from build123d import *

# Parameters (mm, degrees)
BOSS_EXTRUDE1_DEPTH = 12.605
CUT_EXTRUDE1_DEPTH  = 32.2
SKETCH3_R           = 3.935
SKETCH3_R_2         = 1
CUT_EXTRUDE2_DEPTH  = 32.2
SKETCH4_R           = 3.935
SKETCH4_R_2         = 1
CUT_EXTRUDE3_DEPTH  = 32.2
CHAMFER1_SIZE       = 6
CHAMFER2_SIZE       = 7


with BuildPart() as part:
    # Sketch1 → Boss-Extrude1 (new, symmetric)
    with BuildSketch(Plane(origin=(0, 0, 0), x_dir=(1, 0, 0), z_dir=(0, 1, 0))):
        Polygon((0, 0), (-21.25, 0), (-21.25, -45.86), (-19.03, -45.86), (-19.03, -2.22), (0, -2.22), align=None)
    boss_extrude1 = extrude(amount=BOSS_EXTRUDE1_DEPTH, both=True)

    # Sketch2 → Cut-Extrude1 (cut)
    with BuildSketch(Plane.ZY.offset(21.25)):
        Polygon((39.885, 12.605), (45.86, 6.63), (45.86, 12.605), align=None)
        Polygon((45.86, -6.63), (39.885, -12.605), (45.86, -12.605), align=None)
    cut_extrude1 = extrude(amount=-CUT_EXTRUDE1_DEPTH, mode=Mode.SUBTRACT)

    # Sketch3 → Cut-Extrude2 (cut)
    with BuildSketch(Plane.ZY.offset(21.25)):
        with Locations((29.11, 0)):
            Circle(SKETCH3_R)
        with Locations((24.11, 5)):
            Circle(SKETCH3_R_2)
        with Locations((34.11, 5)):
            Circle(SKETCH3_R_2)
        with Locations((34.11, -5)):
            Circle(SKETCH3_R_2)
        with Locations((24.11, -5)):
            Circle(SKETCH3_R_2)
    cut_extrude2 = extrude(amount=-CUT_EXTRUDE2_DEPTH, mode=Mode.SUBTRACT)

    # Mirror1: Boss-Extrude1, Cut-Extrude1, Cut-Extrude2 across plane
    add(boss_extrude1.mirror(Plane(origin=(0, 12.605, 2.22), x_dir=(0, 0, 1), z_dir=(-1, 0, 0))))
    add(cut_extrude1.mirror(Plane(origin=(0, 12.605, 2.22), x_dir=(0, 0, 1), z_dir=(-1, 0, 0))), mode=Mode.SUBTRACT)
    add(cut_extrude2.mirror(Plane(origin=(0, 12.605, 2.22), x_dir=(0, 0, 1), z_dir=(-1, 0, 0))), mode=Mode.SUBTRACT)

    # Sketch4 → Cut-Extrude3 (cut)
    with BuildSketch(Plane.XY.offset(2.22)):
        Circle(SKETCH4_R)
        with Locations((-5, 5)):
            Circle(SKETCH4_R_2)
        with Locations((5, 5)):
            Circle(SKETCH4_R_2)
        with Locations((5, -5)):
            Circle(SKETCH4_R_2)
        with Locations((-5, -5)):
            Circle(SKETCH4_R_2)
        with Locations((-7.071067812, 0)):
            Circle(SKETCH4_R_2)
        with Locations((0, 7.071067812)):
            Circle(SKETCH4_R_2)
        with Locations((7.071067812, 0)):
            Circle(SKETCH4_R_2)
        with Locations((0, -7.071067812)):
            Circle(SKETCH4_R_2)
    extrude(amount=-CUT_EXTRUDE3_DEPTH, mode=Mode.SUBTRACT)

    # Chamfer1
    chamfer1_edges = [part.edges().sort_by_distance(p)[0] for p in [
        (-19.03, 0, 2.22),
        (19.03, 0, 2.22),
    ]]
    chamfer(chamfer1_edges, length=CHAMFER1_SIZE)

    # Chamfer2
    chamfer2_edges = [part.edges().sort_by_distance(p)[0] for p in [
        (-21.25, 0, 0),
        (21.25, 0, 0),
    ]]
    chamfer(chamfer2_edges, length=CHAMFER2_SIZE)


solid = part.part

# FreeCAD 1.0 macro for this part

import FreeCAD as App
import Part
import Sketcher
from FreeCAD import Vector
Q = App.Units.Quantity


def edges_at(feature, points):
    """Names of the edges that pass closest to the given points."""
    edges = feature.Shape.Edges
    near = lambda p: min(range(len(edges)), key=lambda i: edges[i].distToShape(Part.Vertex(*p))[0])
    return sorted({f"Edge{near(p) + 1}" for p in points})

doc = App.newDocument("Part")
params = doc.addObject("Spreadsheet::Sheet", "Params")
for row, (alias, value) in enumerate([
    ("sketch1_width", "21.25 mm"),
    ("sketch1_width2", "2.22 mm"),
    ("sketch1_height", "45.86 mm"),
    ("pad1_length", "25.21 mm"),
    ("pocket1_length", "32.2 mm"),
    ("sketch3_diameter", "2 mm"),
    ("sketch3_diameter2", "7.87 mm"),
    ("pocket2_length", "32.2 mm"),
    ("sketch4_diameter", "2 mm"),
    ("sketch4_diameter2", "7.87 mm"),
    ("pocket3_length", "32.2 mm"),
    ("chamfer_size", "6 mm"),
    ("chamfer2_size", "7 mm"),
], start=1):
    params.set(f"A{row}", alias)
    params.set(f"B{row}", "=" + value)
    params.setAlias(f"B{row}", alias)

body = doc.addObject("PartDesign::Body", "Body")

# Sketch on XZ plane
sketch1 = body.newObject("Sketcher::SketchObject", "Sketch")
sketch1.AttachmentSupport = (doc.getObject("XZ_Plane"), [""])
sketch1.MapMode = "FlatFace"
sketch1.addGeometry(Part.LineSegment(Vector(0, 0, 0), Vector(-21.2, 0, 0)), False)
sketch1.addGeometry(Part.LineSegment(Vector(-21.2, 0, 0), Vector(-21.2, 45.9, 0)), False)
sketch1.addGeometry(Part.LineSegment(Vector(-21.2, 45.9, 0), Vector(-19, 45.9, 0)), False)
sketch1.addGeometry(Part.LineSegment(Vector(-19, 45.9, 0), Vector(-19, 2.2, 0)), False)
sketch1.addGeometry(Part.LineSegment(Vector(-19, 2.2, 0), Vector(0, 2.2, 0)), False)
sketch1.addGeometry(Part.LineSegment(Vector(0, 2.2, 0), Vector(0, 0, 0)), False)
sketch1.addConstraint(Sketcher.Constraint("Coincident", 0, 2, 1, 1))
sketch1.addConstraint(Sketcher.Constraint("Coincident", 1, 2, 2, 1))
sketch1.addConstraint(Sketcher.Constraint("Coincident", 2, 2, 3, 1))
sketch1.addConstraint(Sketcher.Constraint("Coincident", 3, 2, 4, 1))
sketch1.addConstraint(Sketcher.Constraint("Coincident", 4, 2, 5, 1))
sketch1.addConstraint(Sketcher.Constraint("Coincident", 5, 2, 0, 1))
sketch1.addConstraint(Sketcher.Constraint("Horizontal", 0))
sketch1.addConstraint(Sketcher.Constraint("Vertical", 1))
sketch1.addConstraint(Sketcher.Constraint("Horizontal", 2))
sketch1.addConstraint(Sketcher.Constraint("Vertical", 3))
sketch1.addConstraint(Sketcher.Constraint("Horizontal", 4))
sketch1.addConstraint(Sketcher.Constraint("Vertical", 5))
sketch1.addConstraint(Sketcher.Constraint("Coincident", 5, 2, -1, 1))
sketch1.addConstraint(Sketcher.Constraint("Equal", 2, 5))
sketch1.addConstraint(Sketcher.Constraint("DistanceX", 0, 2, 0, 1, Q("21.25 mm")))
sketch1.addConstraint(Sketcher.Constraint("DistanceX", 2, 1, 2, 2, Q("2.22 mm")))
sketch1.addConstraint(Sketcher.Constraint("DistanceY", 1, 1, 1, 2, Q("45.86 mm")))
sketch1.setExpression("Constraints[14]", "Params.sketch1_width")
sketch1.setExpression("Constraints[15]", "Params.sketch1_width2")
sketch1.setExpression("Constraints[16]", "Params.sketch1_height")
pad1 = body.newObject("PartDesign::Pad", "Pad")
pad1.Profile = sketch1
pad1.setExpression("Length", "Params.pad1_length")
pad1.Midplane = True

# Sketch on YZ plane
sketch2 = body.newObject("Sketcher::SketchObject", "Sketch001")
sketch2.AttachmentSupport = (doc.getObject("YZ_Plane"), [""])
sketch2.MapMode = "FlatFace"
sketch2.AttachmentOffset = App.Placement(Vector(0, 0, -21.25), App.Rotation())
sketch2.addGeometry(Part.LineSegment(Vector(13, 40, 0), Vector(7, 46, 0)), False)
sketch2.addGeometry(Part.LineSegment(Vector(7, 46, 0), Vector(13, 46, 0)), False)
sketch2.addGeometry(Part.LineSegment(Vector(13, 46, 0), Vector(13, 40, 0)), False)
sketch2.addGeometry(Part.LineSegment(Vector(-7, 46, 0), Vector(-13, 40, 0)), False)
sketch2.addGeometry(Part.LineSegment(Vector(-13, 40, 0), Vector(-13, 46, 0)), False)
sketch2.addGeometry(Part.LineSegment(Vector(-13, 46, 0), Vector(-7, 46, 0)), False)
sketch2.addConstraint(Sketcher.Constraint("Coincident", 0, 2, 1, 1))
sketch2.addConstraint(Sketcher.Constraint("Coincident", 1, 2, 2, 1))
sketch2.addConstraint(Sketcher.Constraint("Coincident", 2, 2, 0, 1))
sketch2.addConstraint(Sketcher.Constraint("Coincident", 3, 2, 4, 1))
sketch2.addConstraint(Sketcher.Constraint("Coincident", 4, 2, 5, 1))
sketch2.addConstraint(Sketcher.Constraint("Coincident", 5, 2, 3, 1))
sketch2.addConstraint(Sketcher.Constraint("Horizontal", 1))
sketch2.addConstraint(Sketcher.Constraint("Vertical", 2))
sketch2.addConstraint(Sketcher.Constraint("Vertical", 4))
sketch2.addConstraint(Sketcher.Constraint("Horizontal", 5))
sketch2.addConstraint(Sketcher.Constraint("Symmetric", 2, 2, 3, 2, -2))
sketch2.addConstraint(Sketcher.Constraint("Symmetric", 0, 2, 5, 2, -2))
sketch2.addConstraint(Sketcher.Constraint("Perpendicular", 0, 3))
sketch2.addConstraint(Sketcher.Constraint("DistanceX", 1, 1, 1, 2, Q("5.975 mm")))
sketch2.addConstraint(Sketcher.Constraint("DistanceX", -1, 1, 0, 2, Q("6.63 mm")))
sketch2.addConstraint(Sketcher.Constraint("DistanceY", -1, 1, 0, 2, Q("45.86 mm")))
pocket1 = body.newObject("PartDesign::Pocket", "Pocket")
pocket1.Profile = sketch2
pocket1.setExpression("Length", "Params.pocket1_length")
pocket1.Reversed = True

# Sketch on YZ plane
sketch3 = body.newObject("Sketcher::SketchObject", "Sketch002")
sketch3.AttachmentSupport = (doc.getObject("YZ_Plane"), [""])
sketch3.MapMode = "FlatFace"
sketch3.AttachmentOffset = App.Placement(Vector(0, 0, -21.25), App.Rotation())
sketch3.addGeometry(Part.Circle(Vector(0, 29.1, 0), Vector(0, 0, 1), 3.9), False)
sketch3.addGeometry(Part.Circle(Vector(5, 24.1, 0), Vector(0, 0, 1), 1), False)
sketch3.addGeometry(Part.Circle(Vector(5, 34.1, 0), Vector(0, 0, 1), 1), False)
sketch3.addGeometry(Part.Circle(Vector(-5, 34.1, 0), Vector(0, 0, 1), 1), False)
sketch3.addGeometry(Part.Circle(Vector(-5, 24.1, 0), Vector(0, 0, 1), 1), False)
sketch3.addConstraint(Sketcher.Constraint("Equal", 1, 2))
sketch3.addConstraint(Sketcher.Constraint("Equal", 2, 3))
sketch3.addConstraint(Sketcher.Constraint("Equal", 3, 4))
sketch3.addConstraint(Sketcher.Constraint("Symmetric", 2, 3, 3, 3, -2))
sketch3.addConstraint(Sketcher.Constraint("Symmetric", 1, 3, 4, 3, -2))
sketch3.addConstraint(Sketcher.Constraint("PointOnObject", 0, 3, -2))
sketch3.addConstraint(Sketcher.Constraint("Vertical", 1, 3, 2, 3))
sketch3.addConstraint(Sketcher.Constraint("Diameter", 1, Q("2 mm")))
sketch3.addConstraint(Sketcher.Constraint("Diameter", 0, Q("7.87 mm")))
sketch3.addConstraint(Sketcher.Constraint("DistanceX", -1, 1, 1, 3, Q("5 mm")))
sketch3.addConstraint(Sketcher.Constraint("DistanceY", 1, 3, 0, 3, Q("5 mm")))
sketch3.addConstraint(Sketcher.Constraint("DistanceY", 0, 3, 2, 3, Q("5 mm")))
sketch3.addConstraint(Sketcher.Constraint("DistanceY", -1, 1, 0, 3, Q("29.11 mm")))
sketch3.setExpression("Constraints[7]", "Params.sketch3_diameter")
sketch3.setExpression("Constraints[8]", "Params.sketch3_diameter2")
pocket2 = body.newObject("PartDesign::Pocket", "Pocket001")
pocket2.Profile = sketch3
pocket2.setExpression("Length", "Params.pocket2_length")
pocket2.Reversed = True
doc.recompute()

mirrored = body.newObject("PartDesign::Mirrored", "Mirrored")
mirrored.Originals = [pad1, pocket1, pocket2]
mirrored.MirrorPlane = (doc.getObject("YZ_Plane"), [""])
body.Tip = mirrored

# Sketch on XY plane
sketch4 = body.newObject("Sketcher::SketchObject", "Sketch003")
sketch4.AttachmentSupport = (doc.getObject("XY_Plane"), [""])
sketch4.MapMode = "FlatFace"
sketch4.AttachmentOffset = App.Placement(Vector(0, 0, 2.22), App.Rotation())
sketch4.addGeometry(Part.Circle(Vector(0, 0, 0), Vector(0, 0, 1), 3.9), False)
sketch4.addGeometry(Part.Circle(Vector(-5, 5, 0), Vector(0, 0, 1), 1), False)
sketch4.addGeometry(Part.Circle(Vector(5, 5, 0), Vector(0, 0, 1), 1), False)
sketch4.addGeometry(Part.Circle(Vector(5, -5, 0), Vector(0, 0, 1), 1), False)
sketch4.addGeometry(Part.Circle(Vector(-5, -5, 0), Vector(0, 0, 1), 1), False)
sketch4.addGeometry(Part.Circle(Vector(-7.1, 0, 0), Vector(0, 0, 1), 1), False)
sketch4.addGeometry(Part.Circle(Vector(0, 7.1, 0), Vector(0, 0, 1), 1), False)
sketch4.addGeometry(Part.Circle(Vector(7.1, 0, 0), Vector(0, 0, 1), 1), False)
sketch4.addGeometry(Part.Circle(Vector(0, -7.1, 0), Vector(0, 0, 1), 1), False)
sketch4.addConstraint(Sketcher.Constraint("Coincident", 0, 3, -1, 1))
sketch4.addConstraint(Sketcher.Constraint("Equal", 1, 2))
sketch4.addConstraint(Sketcher.Constraint("Equal", 2, 3))
sketch4.addConstraint(Sketcher.Constraint("Equal", 3, 4))
sketch4.addConstraint(Sketcher.Constraint("Equal", 4, 5))
sketch4.addConstraint(Sketcher.Constraint("Equal", 5, 6))
sketch4.addConstraint(Sketcher.Constraint("Equal", 6, 7))
sketch4.addConstraint(Sketcher.Constraint("Equal", 7, 8))
sketch4.addConstraint(Sketcher.Constraint("Symmetric", 1, 3, 3, 3, -1, 1))
sketch4.addConstraint(Sketcher.Constraint("Symmetric", 2, 3, 4, 3, -1, 1))
sketch4.addConstraint(Sketcher.Constraint("Symmetric", 5, 3, 7, 3, -1, 1))
sketch4.addConstraint(Sketcher.Constraint("Symmetric", 6, 3, 8, 3, -1, 1))
sketch4.addConstraint(Sketcher.Constraint("Symmetric", 1, 3, 2, 3, -2))
sketch4.addConstraint(Sketcher.Constraint("PointOnObject", 5, 3, -1))
sketch4.addConstraint(Sketcher.Constraint("PointOnObject", 6, 3, -2))
sketch4.addConstraint(Sketcher.Constraint("Diameter", 1, Q("2 mm")))
sketch4.addConstraint(Sketcher.Constraint("Diameter", 0, Q("7.87 mm")))
sketch4.addConstraint(Sketcher.Constraint("DistanceX", 1, 3, -1, 1, Q("5 mm")))
sketch4.addConstraint(Sketcher.Constraint("DistanceY", -1, 1, 1, 3, Q("5 mm")))
sketch4.addConstraint(Sketcher.Constraint("DistanceX", 5, 3, -1, 1, Q("7.071068 mm")))
sketch4.addConstraint(Sketcher.Constraint("DistanceY", -1, 1, 6, 3, Q("7.071068 mm")))
sketch4.setExpression("Constraints[15]", "Params.sketch4_diameter")
sketch4.setExpression("Constraints[16]", "Params.sketch4_diameter2")
pocket3 = body.newObject("PartDesign::Pocket", "Pocket002")
pocket3.Profile = sketch4
pocket3.setExpression("Length", "Params.pocket3_length")
doc.recompute()

chamfer = body.newObject("PartDesign::Chamfer", "Chamfer")
chamfer.Base = (pocket3, edges_at(pocket3, [(-19.03, 0, 2.22), (19.03, 0, 2.22)]))
chamfer.setExpression("Size", "Params.chamfer_size")
doc.recompute()

chamfer2 = body.newObject("PartDesign::Chamfer", "Chamfer001")
chamfer2.Base = (chamfer, edges_at(chamfer, [(-21.25, 0, 0), (21.25, 0, 0)]))
chamfer2.setExpression("Size", "Params.chamfer2_size")

doc.recompute()
